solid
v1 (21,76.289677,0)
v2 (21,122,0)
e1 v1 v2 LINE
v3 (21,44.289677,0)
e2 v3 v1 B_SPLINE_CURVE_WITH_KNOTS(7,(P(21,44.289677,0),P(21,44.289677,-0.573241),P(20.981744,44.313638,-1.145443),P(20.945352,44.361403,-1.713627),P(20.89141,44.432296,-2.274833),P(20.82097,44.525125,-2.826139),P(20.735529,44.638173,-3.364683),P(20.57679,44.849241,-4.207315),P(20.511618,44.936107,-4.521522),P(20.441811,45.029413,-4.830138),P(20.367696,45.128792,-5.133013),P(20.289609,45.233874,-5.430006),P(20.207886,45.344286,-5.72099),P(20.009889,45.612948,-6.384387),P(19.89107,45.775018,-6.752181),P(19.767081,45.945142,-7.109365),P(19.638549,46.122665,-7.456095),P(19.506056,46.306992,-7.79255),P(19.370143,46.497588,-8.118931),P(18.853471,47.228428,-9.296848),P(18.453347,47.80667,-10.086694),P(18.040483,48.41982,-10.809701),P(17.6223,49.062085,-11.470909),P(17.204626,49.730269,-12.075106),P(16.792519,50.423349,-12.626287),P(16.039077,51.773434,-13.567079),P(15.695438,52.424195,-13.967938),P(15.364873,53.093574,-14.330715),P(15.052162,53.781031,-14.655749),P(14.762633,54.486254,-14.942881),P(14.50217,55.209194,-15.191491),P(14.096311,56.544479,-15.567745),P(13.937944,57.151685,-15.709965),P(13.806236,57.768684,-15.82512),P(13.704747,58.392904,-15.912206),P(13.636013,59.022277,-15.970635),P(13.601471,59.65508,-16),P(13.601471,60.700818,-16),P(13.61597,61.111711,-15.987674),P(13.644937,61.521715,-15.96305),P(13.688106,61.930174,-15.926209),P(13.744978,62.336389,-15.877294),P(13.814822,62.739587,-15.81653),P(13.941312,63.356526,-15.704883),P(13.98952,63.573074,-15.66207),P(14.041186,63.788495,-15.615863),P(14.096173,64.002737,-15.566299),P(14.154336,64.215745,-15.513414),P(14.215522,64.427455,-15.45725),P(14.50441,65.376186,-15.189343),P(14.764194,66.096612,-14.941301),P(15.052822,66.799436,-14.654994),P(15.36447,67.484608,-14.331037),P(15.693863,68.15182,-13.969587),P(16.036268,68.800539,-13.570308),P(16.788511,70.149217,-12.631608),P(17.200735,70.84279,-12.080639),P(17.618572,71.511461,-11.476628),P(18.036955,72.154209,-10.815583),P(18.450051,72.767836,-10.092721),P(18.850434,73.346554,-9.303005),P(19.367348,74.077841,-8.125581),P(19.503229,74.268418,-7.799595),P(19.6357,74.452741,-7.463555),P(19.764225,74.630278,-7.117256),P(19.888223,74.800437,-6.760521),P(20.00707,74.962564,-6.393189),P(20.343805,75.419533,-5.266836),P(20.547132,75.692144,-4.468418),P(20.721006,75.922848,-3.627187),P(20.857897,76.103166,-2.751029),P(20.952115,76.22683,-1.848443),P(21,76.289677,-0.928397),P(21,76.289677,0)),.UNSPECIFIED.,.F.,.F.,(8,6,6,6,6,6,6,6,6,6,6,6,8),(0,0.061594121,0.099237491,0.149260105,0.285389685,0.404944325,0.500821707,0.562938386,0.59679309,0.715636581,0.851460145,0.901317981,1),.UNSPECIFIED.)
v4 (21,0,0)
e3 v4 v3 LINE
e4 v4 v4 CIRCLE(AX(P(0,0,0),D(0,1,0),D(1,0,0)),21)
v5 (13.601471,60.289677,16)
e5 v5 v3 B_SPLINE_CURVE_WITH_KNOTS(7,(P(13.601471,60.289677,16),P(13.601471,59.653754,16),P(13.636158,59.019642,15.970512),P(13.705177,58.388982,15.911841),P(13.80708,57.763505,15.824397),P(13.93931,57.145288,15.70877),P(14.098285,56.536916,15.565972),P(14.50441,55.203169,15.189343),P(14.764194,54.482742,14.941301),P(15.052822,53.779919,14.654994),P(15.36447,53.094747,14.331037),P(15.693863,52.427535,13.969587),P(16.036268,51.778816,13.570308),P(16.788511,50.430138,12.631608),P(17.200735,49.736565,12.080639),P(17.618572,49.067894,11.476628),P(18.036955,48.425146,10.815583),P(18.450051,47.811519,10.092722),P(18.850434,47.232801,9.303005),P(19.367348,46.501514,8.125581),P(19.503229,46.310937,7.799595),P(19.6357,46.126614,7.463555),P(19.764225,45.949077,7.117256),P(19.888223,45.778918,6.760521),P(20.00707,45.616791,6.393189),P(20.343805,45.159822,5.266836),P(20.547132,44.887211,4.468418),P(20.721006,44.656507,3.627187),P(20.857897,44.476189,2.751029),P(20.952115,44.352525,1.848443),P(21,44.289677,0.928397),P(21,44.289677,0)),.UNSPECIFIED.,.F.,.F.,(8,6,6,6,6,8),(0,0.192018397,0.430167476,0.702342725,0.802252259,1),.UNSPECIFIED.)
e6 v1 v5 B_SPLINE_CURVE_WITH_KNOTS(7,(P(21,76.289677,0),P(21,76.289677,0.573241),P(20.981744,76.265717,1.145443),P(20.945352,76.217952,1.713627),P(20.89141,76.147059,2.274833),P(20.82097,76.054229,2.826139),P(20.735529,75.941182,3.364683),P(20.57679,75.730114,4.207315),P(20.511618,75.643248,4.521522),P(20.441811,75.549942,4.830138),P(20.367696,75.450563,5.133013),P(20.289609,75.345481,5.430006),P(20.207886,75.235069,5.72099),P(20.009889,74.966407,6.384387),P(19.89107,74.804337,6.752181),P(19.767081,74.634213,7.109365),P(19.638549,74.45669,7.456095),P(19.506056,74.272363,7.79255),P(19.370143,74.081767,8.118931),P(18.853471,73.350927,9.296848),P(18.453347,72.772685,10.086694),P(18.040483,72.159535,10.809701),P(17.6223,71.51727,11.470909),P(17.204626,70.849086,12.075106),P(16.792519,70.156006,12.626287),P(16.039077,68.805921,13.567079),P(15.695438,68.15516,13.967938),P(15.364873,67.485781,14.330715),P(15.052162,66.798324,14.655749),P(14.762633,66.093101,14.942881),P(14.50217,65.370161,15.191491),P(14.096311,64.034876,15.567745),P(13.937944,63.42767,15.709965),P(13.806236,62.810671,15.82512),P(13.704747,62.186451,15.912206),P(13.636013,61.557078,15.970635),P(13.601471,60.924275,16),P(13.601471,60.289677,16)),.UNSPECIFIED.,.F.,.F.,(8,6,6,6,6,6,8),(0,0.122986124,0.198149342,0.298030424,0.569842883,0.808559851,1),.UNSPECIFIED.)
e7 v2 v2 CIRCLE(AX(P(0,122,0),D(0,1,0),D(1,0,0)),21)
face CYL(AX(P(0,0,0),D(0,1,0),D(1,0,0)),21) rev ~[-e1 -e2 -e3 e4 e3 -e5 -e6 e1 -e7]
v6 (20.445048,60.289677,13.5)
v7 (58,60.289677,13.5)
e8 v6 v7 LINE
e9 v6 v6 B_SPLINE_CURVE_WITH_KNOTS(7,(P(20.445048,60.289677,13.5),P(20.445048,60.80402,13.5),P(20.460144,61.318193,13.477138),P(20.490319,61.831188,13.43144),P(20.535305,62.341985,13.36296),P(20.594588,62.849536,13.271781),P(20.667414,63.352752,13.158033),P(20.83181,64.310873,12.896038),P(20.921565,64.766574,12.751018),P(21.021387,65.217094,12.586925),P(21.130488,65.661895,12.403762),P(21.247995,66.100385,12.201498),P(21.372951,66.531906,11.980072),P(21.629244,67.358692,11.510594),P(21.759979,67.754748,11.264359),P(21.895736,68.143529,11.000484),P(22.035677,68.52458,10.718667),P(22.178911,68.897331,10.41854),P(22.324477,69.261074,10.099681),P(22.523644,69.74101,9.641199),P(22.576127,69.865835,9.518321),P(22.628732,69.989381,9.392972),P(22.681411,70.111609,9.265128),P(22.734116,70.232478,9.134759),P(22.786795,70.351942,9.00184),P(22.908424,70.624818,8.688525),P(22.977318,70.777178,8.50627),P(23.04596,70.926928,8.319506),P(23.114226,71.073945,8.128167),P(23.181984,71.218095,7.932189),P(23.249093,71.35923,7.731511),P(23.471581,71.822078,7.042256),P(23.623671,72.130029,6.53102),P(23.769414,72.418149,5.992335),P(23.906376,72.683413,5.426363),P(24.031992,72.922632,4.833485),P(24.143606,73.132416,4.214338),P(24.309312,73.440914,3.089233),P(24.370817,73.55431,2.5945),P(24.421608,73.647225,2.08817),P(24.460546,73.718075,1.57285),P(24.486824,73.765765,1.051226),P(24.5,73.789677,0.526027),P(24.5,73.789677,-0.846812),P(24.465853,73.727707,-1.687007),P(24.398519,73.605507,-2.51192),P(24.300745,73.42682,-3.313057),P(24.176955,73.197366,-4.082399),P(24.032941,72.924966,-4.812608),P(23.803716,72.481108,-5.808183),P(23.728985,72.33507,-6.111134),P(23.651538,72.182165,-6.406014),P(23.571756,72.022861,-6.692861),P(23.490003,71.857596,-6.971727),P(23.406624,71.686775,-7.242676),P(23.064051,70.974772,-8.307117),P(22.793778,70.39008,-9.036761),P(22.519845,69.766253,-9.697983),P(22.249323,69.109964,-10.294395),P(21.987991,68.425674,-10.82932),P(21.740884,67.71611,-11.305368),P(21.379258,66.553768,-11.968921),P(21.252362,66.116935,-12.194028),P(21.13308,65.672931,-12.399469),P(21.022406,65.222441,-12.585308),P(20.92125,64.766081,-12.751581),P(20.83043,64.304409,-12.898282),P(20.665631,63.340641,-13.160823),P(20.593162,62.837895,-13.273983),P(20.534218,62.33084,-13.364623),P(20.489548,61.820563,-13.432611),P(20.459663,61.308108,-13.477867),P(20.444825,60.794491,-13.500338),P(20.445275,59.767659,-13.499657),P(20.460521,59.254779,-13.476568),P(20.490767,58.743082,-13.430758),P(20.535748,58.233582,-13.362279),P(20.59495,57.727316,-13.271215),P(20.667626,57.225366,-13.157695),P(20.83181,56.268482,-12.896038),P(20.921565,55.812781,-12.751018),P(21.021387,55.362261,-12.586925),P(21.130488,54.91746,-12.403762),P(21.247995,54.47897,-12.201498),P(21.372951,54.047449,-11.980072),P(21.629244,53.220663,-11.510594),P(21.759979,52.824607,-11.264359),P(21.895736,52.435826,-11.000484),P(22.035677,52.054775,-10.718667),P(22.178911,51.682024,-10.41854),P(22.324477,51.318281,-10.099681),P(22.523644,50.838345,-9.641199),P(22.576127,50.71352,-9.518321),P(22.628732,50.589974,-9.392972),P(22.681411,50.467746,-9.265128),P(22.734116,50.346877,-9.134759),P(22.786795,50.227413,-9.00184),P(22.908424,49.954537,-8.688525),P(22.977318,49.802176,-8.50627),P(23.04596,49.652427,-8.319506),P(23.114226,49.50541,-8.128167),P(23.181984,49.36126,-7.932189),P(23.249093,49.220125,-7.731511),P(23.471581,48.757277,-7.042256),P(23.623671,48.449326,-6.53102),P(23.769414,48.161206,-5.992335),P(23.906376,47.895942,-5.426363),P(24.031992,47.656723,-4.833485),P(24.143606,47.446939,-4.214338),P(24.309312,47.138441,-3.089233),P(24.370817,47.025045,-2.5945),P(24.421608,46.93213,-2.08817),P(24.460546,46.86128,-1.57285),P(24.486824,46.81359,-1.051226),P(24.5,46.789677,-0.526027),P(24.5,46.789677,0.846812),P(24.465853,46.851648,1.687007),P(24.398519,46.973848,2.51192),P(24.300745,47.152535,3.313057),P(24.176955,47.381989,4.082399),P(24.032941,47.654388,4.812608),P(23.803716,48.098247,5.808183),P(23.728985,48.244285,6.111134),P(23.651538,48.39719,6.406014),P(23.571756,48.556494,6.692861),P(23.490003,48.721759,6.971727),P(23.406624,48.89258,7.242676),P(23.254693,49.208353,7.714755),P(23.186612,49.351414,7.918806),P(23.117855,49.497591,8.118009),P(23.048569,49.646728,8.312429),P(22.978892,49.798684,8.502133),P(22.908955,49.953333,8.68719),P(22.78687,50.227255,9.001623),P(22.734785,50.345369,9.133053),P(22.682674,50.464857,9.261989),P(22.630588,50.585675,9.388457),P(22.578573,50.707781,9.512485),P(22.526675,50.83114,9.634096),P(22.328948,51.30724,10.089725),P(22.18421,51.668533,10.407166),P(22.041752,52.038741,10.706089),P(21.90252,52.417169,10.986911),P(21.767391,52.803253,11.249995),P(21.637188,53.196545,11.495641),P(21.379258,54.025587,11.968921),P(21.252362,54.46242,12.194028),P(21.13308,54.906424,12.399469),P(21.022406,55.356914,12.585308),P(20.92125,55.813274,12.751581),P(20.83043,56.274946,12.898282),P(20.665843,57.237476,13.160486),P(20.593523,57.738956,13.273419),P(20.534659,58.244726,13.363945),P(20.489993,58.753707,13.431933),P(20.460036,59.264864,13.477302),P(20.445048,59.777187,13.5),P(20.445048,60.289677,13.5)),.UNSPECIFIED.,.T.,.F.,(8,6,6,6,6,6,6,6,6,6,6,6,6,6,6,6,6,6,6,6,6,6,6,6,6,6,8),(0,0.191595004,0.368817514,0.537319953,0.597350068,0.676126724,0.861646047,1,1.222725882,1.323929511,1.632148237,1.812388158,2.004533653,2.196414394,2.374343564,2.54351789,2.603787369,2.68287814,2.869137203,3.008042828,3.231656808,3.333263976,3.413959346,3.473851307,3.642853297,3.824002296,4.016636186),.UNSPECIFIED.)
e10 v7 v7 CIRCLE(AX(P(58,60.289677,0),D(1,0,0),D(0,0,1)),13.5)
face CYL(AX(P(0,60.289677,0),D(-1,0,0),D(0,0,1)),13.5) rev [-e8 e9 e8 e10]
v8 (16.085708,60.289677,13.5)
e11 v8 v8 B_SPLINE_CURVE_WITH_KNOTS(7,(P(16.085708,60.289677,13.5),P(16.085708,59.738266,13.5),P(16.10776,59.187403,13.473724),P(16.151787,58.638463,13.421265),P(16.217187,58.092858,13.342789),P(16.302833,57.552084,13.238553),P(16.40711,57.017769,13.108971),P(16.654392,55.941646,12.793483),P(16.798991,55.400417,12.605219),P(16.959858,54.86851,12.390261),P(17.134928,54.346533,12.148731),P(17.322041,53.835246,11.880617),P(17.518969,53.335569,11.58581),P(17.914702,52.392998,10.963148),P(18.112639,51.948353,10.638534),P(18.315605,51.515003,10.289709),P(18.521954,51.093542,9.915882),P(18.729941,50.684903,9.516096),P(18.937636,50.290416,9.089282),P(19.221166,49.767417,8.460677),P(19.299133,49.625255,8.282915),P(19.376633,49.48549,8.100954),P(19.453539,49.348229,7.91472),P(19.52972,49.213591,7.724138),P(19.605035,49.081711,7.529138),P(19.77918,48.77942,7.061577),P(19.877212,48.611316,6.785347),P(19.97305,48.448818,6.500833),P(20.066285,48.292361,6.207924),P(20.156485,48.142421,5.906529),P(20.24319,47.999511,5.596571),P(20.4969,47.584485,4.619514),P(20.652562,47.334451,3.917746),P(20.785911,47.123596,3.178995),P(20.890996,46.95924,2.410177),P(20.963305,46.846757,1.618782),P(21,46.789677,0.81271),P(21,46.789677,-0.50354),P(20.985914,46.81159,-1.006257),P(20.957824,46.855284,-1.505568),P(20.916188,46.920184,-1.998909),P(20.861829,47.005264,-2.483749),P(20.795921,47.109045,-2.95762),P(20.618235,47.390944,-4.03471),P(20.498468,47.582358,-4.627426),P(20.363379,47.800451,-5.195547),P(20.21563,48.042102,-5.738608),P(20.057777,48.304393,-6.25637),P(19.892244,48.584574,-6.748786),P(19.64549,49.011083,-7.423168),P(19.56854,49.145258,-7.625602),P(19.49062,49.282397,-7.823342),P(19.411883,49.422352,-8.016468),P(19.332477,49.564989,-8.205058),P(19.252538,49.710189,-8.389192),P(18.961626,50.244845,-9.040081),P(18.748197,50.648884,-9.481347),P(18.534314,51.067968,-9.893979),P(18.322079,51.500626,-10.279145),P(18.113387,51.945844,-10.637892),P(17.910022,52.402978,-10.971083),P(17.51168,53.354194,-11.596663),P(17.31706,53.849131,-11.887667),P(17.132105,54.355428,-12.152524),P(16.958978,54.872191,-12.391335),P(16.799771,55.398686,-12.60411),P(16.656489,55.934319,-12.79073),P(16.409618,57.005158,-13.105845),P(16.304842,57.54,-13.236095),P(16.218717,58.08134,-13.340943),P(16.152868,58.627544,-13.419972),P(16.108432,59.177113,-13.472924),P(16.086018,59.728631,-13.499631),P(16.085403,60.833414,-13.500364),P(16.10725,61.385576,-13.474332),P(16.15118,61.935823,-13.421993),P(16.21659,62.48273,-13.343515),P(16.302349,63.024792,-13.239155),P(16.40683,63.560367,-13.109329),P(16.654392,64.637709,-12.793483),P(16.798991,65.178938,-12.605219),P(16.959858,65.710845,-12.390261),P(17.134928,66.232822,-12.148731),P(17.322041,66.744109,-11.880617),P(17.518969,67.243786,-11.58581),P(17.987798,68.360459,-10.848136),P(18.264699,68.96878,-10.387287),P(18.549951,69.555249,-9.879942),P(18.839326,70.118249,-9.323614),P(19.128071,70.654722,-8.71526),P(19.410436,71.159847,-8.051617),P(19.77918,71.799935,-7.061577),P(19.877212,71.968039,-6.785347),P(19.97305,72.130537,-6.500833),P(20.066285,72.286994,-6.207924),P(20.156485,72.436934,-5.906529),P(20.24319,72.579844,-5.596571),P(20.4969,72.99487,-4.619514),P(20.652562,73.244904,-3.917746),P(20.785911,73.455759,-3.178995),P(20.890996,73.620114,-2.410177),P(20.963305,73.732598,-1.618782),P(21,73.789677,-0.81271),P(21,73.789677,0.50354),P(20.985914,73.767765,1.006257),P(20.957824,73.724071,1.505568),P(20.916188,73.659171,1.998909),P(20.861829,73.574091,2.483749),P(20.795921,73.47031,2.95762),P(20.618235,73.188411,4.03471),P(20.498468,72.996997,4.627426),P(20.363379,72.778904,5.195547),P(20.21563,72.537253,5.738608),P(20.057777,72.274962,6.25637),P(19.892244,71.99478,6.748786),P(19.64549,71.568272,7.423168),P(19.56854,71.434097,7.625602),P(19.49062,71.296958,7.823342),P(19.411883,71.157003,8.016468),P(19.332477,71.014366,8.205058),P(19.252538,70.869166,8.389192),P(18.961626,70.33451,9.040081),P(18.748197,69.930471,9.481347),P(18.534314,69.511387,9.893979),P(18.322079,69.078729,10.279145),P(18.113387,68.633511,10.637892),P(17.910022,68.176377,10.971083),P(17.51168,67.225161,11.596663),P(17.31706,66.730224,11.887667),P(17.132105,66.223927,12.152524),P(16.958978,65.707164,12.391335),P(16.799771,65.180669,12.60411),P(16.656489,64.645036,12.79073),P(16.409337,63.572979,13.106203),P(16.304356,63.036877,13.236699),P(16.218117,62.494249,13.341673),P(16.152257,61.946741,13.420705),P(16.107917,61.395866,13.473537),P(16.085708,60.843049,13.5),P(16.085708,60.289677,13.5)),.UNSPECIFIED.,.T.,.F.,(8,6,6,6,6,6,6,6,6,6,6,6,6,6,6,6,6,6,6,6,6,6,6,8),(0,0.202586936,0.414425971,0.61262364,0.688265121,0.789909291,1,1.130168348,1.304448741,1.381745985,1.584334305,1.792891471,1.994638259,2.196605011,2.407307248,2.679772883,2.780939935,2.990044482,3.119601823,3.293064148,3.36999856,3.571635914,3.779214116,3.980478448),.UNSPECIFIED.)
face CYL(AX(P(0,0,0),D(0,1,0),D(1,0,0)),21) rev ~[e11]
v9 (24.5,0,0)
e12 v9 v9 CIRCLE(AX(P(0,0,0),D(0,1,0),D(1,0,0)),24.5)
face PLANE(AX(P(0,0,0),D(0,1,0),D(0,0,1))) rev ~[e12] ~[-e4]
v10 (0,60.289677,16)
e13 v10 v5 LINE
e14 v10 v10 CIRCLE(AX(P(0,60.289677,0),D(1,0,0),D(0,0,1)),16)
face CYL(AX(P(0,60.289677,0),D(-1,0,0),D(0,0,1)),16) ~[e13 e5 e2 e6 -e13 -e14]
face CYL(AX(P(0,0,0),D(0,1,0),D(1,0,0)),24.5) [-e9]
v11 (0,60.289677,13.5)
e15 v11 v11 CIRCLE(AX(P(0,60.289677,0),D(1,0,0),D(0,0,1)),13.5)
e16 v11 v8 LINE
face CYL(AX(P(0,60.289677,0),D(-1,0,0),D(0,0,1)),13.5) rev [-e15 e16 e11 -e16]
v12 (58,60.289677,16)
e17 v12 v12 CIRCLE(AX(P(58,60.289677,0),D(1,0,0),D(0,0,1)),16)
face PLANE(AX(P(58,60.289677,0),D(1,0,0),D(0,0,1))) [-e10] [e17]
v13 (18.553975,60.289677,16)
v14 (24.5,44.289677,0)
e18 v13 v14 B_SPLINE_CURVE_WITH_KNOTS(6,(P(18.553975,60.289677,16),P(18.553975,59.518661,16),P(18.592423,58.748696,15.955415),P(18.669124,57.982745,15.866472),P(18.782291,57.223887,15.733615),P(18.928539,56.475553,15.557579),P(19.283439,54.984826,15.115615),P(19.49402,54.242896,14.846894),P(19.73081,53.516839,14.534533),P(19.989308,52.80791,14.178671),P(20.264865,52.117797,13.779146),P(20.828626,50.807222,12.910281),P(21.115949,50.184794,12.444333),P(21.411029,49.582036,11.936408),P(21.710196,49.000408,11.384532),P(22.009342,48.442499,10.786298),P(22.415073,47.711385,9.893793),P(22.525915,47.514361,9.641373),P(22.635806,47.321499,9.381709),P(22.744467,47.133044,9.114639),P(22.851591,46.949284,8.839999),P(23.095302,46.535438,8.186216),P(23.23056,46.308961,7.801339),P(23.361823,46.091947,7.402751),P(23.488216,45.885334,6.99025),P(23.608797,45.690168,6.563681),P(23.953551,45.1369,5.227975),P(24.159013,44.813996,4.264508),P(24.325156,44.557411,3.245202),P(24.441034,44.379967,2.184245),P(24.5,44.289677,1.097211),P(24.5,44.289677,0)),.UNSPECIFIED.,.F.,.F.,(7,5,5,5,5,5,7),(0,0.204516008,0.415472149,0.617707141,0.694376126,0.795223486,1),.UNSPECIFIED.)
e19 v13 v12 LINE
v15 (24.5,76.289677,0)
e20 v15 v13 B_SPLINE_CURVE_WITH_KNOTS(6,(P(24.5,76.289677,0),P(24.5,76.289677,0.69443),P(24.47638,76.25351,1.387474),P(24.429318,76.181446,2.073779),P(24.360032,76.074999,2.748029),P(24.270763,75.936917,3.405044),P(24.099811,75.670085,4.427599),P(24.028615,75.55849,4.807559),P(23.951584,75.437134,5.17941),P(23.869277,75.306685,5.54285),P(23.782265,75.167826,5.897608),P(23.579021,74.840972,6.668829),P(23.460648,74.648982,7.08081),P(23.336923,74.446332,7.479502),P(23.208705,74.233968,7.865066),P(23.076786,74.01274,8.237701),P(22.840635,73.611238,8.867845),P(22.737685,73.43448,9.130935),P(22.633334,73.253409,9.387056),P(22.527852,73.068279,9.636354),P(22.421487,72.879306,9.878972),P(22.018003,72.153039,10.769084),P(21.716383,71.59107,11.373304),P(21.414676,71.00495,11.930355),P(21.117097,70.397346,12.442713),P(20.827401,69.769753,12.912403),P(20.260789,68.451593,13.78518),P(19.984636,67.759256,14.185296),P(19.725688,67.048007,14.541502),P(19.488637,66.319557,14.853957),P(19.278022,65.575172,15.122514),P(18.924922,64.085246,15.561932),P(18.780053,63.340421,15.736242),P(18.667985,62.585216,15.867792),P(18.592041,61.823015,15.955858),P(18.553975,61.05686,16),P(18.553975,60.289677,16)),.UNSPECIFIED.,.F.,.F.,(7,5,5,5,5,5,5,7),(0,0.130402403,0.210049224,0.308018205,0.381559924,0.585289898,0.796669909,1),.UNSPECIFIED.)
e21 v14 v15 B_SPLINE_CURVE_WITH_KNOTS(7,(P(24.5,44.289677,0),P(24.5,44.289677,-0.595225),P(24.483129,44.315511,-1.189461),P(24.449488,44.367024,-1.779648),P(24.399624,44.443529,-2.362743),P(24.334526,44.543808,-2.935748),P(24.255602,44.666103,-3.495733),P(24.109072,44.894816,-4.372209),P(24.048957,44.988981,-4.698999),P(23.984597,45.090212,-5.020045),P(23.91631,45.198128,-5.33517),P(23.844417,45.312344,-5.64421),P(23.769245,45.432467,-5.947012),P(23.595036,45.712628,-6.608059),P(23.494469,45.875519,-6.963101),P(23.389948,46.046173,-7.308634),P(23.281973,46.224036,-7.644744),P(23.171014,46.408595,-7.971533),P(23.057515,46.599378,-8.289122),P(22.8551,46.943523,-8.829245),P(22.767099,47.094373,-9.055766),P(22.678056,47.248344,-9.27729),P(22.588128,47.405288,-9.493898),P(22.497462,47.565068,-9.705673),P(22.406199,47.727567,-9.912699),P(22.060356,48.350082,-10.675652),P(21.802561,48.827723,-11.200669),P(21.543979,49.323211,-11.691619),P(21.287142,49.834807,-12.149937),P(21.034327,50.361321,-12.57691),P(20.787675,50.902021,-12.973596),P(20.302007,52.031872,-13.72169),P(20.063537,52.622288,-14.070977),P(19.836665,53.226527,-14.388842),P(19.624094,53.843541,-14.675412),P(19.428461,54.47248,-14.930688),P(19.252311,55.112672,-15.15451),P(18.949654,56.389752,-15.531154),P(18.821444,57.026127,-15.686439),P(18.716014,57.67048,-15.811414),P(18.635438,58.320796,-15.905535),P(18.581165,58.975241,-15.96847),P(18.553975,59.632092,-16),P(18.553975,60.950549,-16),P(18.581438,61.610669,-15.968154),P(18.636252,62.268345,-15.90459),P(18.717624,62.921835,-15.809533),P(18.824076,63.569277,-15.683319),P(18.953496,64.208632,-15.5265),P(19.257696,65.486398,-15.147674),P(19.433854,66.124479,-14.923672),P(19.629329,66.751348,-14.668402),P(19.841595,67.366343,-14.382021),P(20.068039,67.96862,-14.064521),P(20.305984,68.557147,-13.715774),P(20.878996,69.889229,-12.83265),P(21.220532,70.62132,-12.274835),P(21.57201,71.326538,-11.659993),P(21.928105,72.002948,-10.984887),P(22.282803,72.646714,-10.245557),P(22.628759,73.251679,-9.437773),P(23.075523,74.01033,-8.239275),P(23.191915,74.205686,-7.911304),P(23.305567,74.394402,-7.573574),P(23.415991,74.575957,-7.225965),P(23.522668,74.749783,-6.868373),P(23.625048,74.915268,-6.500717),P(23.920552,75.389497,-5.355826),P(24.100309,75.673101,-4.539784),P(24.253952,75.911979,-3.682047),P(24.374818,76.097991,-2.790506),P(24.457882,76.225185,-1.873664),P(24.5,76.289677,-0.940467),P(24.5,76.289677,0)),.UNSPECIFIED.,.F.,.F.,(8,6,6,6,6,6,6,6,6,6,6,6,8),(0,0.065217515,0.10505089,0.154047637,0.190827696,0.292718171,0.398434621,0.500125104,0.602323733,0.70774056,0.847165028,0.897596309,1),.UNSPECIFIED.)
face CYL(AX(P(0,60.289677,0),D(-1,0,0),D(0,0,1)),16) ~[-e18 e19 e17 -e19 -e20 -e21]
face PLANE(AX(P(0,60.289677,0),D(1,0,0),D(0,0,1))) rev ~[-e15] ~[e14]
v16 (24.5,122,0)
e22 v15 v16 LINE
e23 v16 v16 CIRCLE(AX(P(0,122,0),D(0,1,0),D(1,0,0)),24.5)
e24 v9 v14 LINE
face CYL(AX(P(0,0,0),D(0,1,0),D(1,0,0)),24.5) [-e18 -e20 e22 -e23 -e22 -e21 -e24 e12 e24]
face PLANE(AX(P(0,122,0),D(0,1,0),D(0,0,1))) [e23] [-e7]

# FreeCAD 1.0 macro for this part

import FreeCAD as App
import Part
import Sketcher

doc = App.newDocument("Part")
params = doc.addObject("Spreadsheet::Sheet", "Params")
for row, (alias, value) in enumerate([
    ("sketch1_diameter", "49 mm"),
    ("sketch1_diameter2", "42 mm"),
    ("sketch2_height", "122 mm"),
    ("sketch3_diameter", "32 mm"),
    ("sketch3_diameter2", "27 mm"),
    ("pad1_length", "58 mm"),
], start=1):
    params.set(f"A{row}", alias)
    params.set(f"B{row}", "=" + value)
    params.setAlias(f"B{row}", alias)

body = doc.addObject("PartDesign::Body", "Body")

# Sketch on XZ plane
sketch1 = doc.addObject("Sketcher::SketchObject", "Sketch")
body.addObject(sketch1)
sketch1.AttachmentSupport = (doc.XZ_Plane, [""])
sketch1.MapMode = "FlatFace"
sketch1.addGeometry(Part.Circle(App.Vector(0, 0, 0), App.Vector(0, 0, 1), 24.5), False)
sketch1.addGeometry(Part.Circle(App.Vector(0, 0, 0), App.Vector(0, 0, 1), 21), False)
sketch1.addConstraint(Sketcher.Constraint("Coincident", 0, 3, -1, 1))
sketch1.addConstraint(Sketcher.Constraint("Coincident", 1, 3, -1, 1))
sketch1.addConstraint(Sketcher.Constraint("Diameter", 0, 49.0))
sketch1.addConstraint(Sketcher.Constraint("Diameter", 1, 42.0))
sketch1.setExpression("Constraints[2]", "Params.sketch1_diameter")
sketch1.setExpression("Constraints[3]", "Params.sketch1_diameter2")

# Sketch on XY plane
sketch2 = doc.addObject("Sketcher::SketchObject", "Sketch001")
body.addObject(sketch2)
sketch2.AttachmentSupport = (doc.XY_Plane, [""])
sketch2.MapMode = "FlatFace"
sketch2.addGeometry(Part.LineSegment(App.Vector(0, 0, 0), App.Vector(0, 122, 0)), False)
sketch2.addConstraint(Sketcher.Constraint("Vertical", 0))
sketch2.addConstraint(Sketcher.Constraint("Coincident", 0, 1, -1, 1))
sketch2.addConstraint(Sketcher.Constraint("DistanceY", 0, 1, 0, 2, 122.0))
sketch2.setExpression("Constraints[2]", "Params.sketch2_height")
doc.recompute()

additivepipe = doc.addObject("PartDesign::AdditivePipe", "AdditivePipe")
body.addObject(additivepipe)
additivepipe.Profile = sketch1
additivepipe.Spine = (sketch2, ["Edge1"])

# Sketch on YZ plane
sketch3 = doc.addObject("Sketcher::SketchObject", "Sketch002")
body.addObject(sketch3)
sketch3.AttachmentSupport = (doc.YZ_Plane, [""])
sketch3.MapMode = "FlatFace"
sketch3.addGeometry(Part.Circle(App.Vector(60.289677, 0, 0), App.Vector(0, 0, 1), 16), False)
sketch3.addGeometry(Part.Circle(App.Vector(60.289677, 0, 0), App.Vector(0, 0, 1), 13.5), False)
sketch3.addConstraint(Sketcher.Constraint("Coincident", 1, 3, 0, 3))
sketch3.addConstraint(Sketcher.Constraint("PointOnObject", 0, 3, -1))
sketch3.addConstraint(Sketcher.Constraint("Diameter", 0, 32.0))
sketch3.addConstraint(Sketcher.Constraint("Diameter", 1, 27.0))
sketch3.addConstraint(Sketcher.Constraint("DistanceX", -1, 1, 0, 3, 60.289677))
sketch3.setExpression("Constraints[2]", "Params.sketch3_diameter")
sketch3.setExpression("Constraints[3]", "Params.sketch3_diameter2")
pad1 = doc.addObject("PartDesign::Pad", "Pad")
body.addObject(pad1)
pad1.Profile = sketch3
pad1.setExpression("Length", "Params.pad1_length")

doc.recompute()
